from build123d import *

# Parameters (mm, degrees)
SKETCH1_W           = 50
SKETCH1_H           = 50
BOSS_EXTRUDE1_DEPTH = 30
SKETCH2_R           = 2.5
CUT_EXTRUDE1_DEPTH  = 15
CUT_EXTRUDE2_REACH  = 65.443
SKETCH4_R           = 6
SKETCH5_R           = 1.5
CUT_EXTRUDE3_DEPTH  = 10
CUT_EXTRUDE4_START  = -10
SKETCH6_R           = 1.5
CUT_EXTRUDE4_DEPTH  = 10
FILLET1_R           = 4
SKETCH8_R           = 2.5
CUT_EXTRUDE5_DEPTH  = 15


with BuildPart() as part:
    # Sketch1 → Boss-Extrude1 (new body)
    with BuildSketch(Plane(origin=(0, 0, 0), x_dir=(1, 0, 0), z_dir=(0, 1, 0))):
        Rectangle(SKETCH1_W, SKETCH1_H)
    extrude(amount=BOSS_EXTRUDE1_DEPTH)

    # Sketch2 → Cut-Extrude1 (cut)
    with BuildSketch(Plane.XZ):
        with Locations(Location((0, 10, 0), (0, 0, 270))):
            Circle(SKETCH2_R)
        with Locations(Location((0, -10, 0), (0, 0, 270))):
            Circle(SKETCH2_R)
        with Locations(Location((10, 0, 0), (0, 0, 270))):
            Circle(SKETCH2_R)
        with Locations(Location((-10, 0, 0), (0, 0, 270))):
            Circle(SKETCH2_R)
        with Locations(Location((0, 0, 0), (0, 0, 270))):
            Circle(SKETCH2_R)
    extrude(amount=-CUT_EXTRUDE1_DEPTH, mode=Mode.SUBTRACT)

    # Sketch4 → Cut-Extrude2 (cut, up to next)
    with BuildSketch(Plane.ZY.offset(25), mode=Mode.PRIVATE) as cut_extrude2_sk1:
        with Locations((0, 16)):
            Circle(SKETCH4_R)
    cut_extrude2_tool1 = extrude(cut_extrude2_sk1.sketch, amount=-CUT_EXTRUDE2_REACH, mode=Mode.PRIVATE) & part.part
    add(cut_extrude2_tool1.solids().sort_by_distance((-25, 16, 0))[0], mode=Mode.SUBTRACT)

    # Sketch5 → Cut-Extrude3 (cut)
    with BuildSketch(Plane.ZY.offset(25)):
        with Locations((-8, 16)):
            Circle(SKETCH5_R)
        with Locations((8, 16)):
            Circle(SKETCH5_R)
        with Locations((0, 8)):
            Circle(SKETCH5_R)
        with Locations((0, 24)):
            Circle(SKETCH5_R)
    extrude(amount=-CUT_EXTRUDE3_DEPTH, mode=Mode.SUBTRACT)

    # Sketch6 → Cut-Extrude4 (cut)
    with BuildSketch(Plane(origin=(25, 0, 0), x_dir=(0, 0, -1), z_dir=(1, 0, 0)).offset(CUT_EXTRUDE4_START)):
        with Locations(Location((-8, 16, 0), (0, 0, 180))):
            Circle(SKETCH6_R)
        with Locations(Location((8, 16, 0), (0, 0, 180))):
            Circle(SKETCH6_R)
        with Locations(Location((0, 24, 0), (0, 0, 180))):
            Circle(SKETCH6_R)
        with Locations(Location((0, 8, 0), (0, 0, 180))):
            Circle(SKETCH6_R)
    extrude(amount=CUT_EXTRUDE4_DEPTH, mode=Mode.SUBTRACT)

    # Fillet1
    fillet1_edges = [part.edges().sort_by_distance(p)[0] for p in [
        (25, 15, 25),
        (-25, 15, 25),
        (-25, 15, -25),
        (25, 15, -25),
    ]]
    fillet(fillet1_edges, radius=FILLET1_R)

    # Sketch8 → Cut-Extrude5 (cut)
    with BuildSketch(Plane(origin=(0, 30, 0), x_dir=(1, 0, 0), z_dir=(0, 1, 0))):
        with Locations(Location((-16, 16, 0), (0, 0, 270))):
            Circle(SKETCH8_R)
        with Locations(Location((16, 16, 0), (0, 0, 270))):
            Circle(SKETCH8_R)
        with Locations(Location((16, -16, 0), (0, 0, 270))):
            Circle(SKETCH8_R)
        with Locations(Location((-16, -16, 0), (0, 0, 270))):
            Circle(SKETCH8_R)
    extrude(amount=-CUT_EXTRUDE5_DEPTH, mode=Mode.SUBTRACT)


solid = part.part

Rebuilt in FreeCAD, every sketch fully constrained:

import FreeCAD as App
import Part
import Sketcher

V = App.Vector


def edges_at(feature, points):
    """Names of the edges that pass closest to the given points."""
    edges = feature.Shape.Edges
    near = lambda p: min(range(len(edges)), key=lambda i: edges[i].distToShape(Part.Vertex(*p))[0])
    return sorted({f"Edge{near(p) + 1}" for p in points})

doc = App.newDocument("Part")
body = doc.addObject("PartDesign::Body", "Body")

# Sketch on XZ plane
sketch1 = doc.addObject("Sketcher::SketchObject", "Sketch")
body.addObject(sketch1)
sketch1.AttachmentSupport = (doc.XZ_Plane, [""])
sketch1.MapMode = "FlatFace"
sketch1.addGeometry(Part.LineSegment(V(-25, -25, 0), V(-25, 25, 0)), False)
sketch1.addGeometry(Part.LineSegment(V(-25, 25, 0), V(25, 25, 0)), False)
sketch1.addGeometry(Part.LineSegment(V(25, 25, 0), V(25, -25, 0)), False)
sketch1.addGeometry(Part.LineSegment(V(25, -25, 0), V(-25, -25, 0)), False)
sketch1.addConstraint(Sketcher.Constraint("Coincident", 0, 2, 1, 1))
sketch1.addConstraint(Sketcher.Constraint("Coincident", 1, 2, 2, 1))
sketch1.addConstraint(Sketcher.Constraint("Coincident", 2, 2, 3, 1))
sketch1.addConstraint(Sketcher.Constraint("Coincident", 3, 2, 0, 1))
sketch1.addConstraint(Sketcher.Constraint("Vertical", 0))
sketch1.addConstraint(Sketcher.Constraint("Horizontal", 1))
sketch1.addConstraint(Sketcher.Constraint("Vertical", 2))
sketch1.addConstraint(Sketcher.Constraint("Horizontal", 3))
sketch1.addConstraint(Sketcher.Constraint("Symmetric", 0, 2, 2, 2, -1, 1))
sketch1.addConstraint(Sketcher.Constraint("Equal", 3, 0))
sketch1.addConstraint(Sketcher.Constraint("DistanceX", 1, 1, 1, 2, 50.0))
pad1 = doc.addObject("PartDesign::Pad", "Pad")
body.addObject(pad1)
pad1.Profile = sketch1
pad1.Length = 30
pad1.Reversed = True

# Sketch on XZ plane
sketch2 = doc.addObject("Sketcher::SketchObject", "Sketch001")
body.addObject(sketch2)
sketch2.AttachmentSupport = (doc.XZ_Plane, [""])
sketch2.MapMode = "FlatFace"
sketch2.addGeometry(Part.Circle(V(0, 10, 0), V(0, 0, 1), 2.5), False)
sketch2.addGeometry(Part.Circle(V(0, -10, 0), V(0, 0, 1), 2.5), False)
sketch2.addGeometry(Part.Circle(V(10, 0, 0), V(0, 0, 1), 2.5), False)
sketch2.addGeometry(Part.Circle(V(-10, 0, 0), V(0, 0, 1), 2.5), False)
sketch2.addGeometry(Part.Circle(V(0, 0, 0), V(0, 0, 1), 2.5), False)
sketch2.addConstraint(Sketcher.Constraint("Coincident", 4, 3, -1, 1))
sketch2.addConstraint(Sketcher.Constraint("Equal", 0, 1))
sketch2.addConstraint(Sketcher.Constraint("Equal", 1, 2))
sketch2.addConstraint(Sketcher.Constraint("Equal", 2, 3))
sketch2.addConstraint(Sketcher.Constraint("Equal", 3, 4))
sketch2.addConstraint(Sketcher.Constraint("Symmetric", 0, 3, 1, 3, -1, 1))
sketch2.addConstraint(Sketcher.Constraint("Symmetric", 2, 3, 3, 3, -1, 1))
sketch2.addConstraint(Sketcher.Constraint("PointOnObject", 0, 3, -2))
sketch2.addConstraint(Sketcher.Constraint("PointOnObject", 2, 3, -1))
sketch2.addConstraint(Sketcher.Constraint("Diameter", 0, 5.0))
sketch2.addConstraint(Sketcher.Constraint("DistanceY", -1, 1, 0, 3, 10.0))
sketch2.addConstraint(Sketcher.Constraint("DistanceX", -1, 1, 2, 3, 10.0))
pocket1 = doc.addObject("PartDesign::Pocket", "Pocket")
body.addObject(pocket1)
pocket1.Profile = sketch2
pocket1.Length = 15

# Sketch on YZ plane
sketch3 = doc.addObject("Sketcher::SketchObject", "Sketch002")
body.addObject(sketch3)
sketch3.AttachmentSupport = (doc.YZ_Plane, [""])
sketch3.MapMode = "FlatFace"
sketch3.AttachmentOffset = App.Placement(V(0, 0, -25), App.Rotation())
sketch3.addGeometry(Part.Circle(V(16, 0, 0), V(0, 0, 1), 6), False)
sketch3.addConstraint(Sketcher.Constraint("PointOnObject", 0, 3, -1))
sketch3.addConstraint(Sketcher.Constraint("Diameter", 0, 12.0))
sketch3.addConstraint(Sketcher.Constraint("DistanceX", -1, 1, 0, 3, 16.0))
pocket2 = doc.addObject("PartDesign::Pocket", "Pocket001")
body.addObject(pocket2)
pocket2.Profile = sketch3
pocket2.Type = "UpToFirst"
pocket2.Reversed = True

# Sketch on YZ plane
sketch4 = doc.addObject("Sketcher::SketchObject", "Sketch003")
body.addObject(sketch4)
sketch4.AttachmentSupport = (doc.YZ_Plane, [""])
sketch4.MapMode = "FlatFace"
sketch4.AttachmentOffset = App.Placement(V(0, 0, -25), App.Rotation())
sketch4.addGeometry(Part.Circle(V(16, -8, 0), V(0, 0, 1), 1.5), False)
sketch4.addGeometry(Part.Circle(V(16, 8, 0), V(0, 0, 1), 1.5), False)
sketch4.addGeometry(Part.Circle(V(8, 0, 0), V(0, 0, 1), 1.5), False)
sketch4.addGeometry(Part.Circle(V(24, 0, 0), V(0, 0, 1), 1.5), False)
sketch4.addConstraint(Sketcher.Constraint("Equal", 0, 1))
sketch4.addConstraint(Sketcher.Constraint("Equal", 1, 2))
sketch4.addConstraint(Sketcher.Constraint("Equal", 2, 3))
sketch4.addConstraint(Sketcher.Constraint("Symmetric", 0, 3, 1, 3, -1))
sketch4.addConstraint(Sketcher.Constraint("PointOnObject", 2, 3, -1))
sketch4.addConstraint(Sketcher.Constraint("PointOnObject", 3, 3, -1))
sketch4.addConstraint(Sketcher.Constraint("Diameter", 0, 3.0))
sketch4.addConstraint(Sketcher.Constraint("DistanceX", -1, 1, 0, 3, 16.0))
sketch4.addConstraint(Sketcher.Constraint("DistanceY", 0, 3, -1, 1, 8.0))
sketch4.addConstraint(Sketcher.Constraint("DistanceX", -1, 1, 2, 3, 8.0))
sketch4.addConstraint(Sketcher.Constraint("DistanceX", -1, 1, 3, 3, 24.0))
pocket3 = doc.addObject("PartDesign::Pocket", "Pocket002")
body.addObject(pocket3)
pocket3.Profile = sketch4
pocket3.Length = 10
pocket3.Reversed = True

# Sketch on YZ plane
sketch5 = doc.addObject("Sketcher::SketchObject", "Sketch004")
body.addObject(sketch5)
sketch5.AttachmentSupport = (doc.YZ_Plane, [""])
sketch5.MapMode = "FlatFace"
sketch5.AttachmentOffset = App.Placement(V(0, 0, 15), App.Rotation())
sketch5.addGeometry(Part.Circle(V(16, 8, 0), V(0, 0, 1), 1.5), False)
sketch5.addGeometry(Part.Circle(V(16, -8, 0), V(0, 0, 1), 1.5), False)
sketch5.addGeometry(Part.Circle(V(24, 0, 0), V(0, 0, 1), 1.5), False)
sketch5.addGeometry(Part.Circle(V(8, 0, 0), V(0, 0, 1), 1.5), False)
sketch5.addConstraint(Sketcher.Constraint("Equal", 0, 1))
sketch5.addConstraint(Sketcher.Constraint("Equal", 1, 2))
sketch5.addConstraint(Sketcher.Constraint("Equal", 2, 3))
sketch5.addConstraint(Sketcher.Constraint("Symmetric", 0, 3, 1, 3, -1))
sketch5.addConstraint(Sketcher.Constraint("PointOnObject", 2, 3, -1))
sketch5.addConstraint(Sketcher.Constraint("PointOnObject", 3, 3, -1))
sketch5.addConstraint(Sketcher.Constraint("Diameter", 0, 3.0))
sketch5.addConstraint(Sketcher.Constraint("DistanceX", -1, 1, 0, 3, 16.0))
sketch5.addConstraint(Sketcher.Constraint("DistanceY", -1, 1, 0, 3, 8.0))
sketch5.addConstraint(Sketcher.Constraint("DistanceX", -1, 1, 2, 3, 24.0))
sketch5.addConstraint(Sketcher.Constraint("DistanceX", -1, 1, 3, 3, 8.0))
pocket4 = doc.addObject("PartDesign::Pocket", "Pocket003")
body.addObject(pocket4)
pocket4.Profile = sketch5
pocket4.Length = 10
pocket4.Reversed = True
doc.recompute()

fillet = doc.addObject("PartDesign::Fillet", "Fillet")
body.addObject(fillet)
fillet.Base = (pocket4, edges_at(pocket4, [
    (25, 15, 25),
    (-25, 15, 25),
    (-25, 15, -25),
    (25, 15, -25),
]))
fillet.Radius = 4

# Sketch on XZ plane
sketch6 = doc.addObject("Sketcher::SketchObject", "Sketch005")
body.addObject(sketch6)
sketch6.AttachmentSupport = (doc.XZ_Plane, [""])
sketch6.MapMode = "FlatFace"
sketch6.AttachmentOffset = App.Placement(V(0, 0, -30), App.Rotation())
sketch6.addGeometry(Part.Circle(V(-16, -16, 0), V(0, 0, 1), 2.5), False)
sketch6.addGeometry(Part.Circle(V(16, -16, 0), V(0, 0, 1), 2.5), False)
sketch6.addGeometry(Part.Circle(V(16, 16, 0), V(0, 0, 1), 2.5), False)
sketch6.addGeometry(Part.Circle(V(-16, 16, 0), V(0, 0, 1), 2.5), False)
sketch6.addConstraint(Sketcher.Constraint("Equal", 0, 1))
sketch6.addConstraint(Sketcher.Constraint("Equal", 1, 2))
sketch6.addConstraint(Sketcher.Constraint("Equal", 2, 3))
sketch6.addConstraint(Sketcher.Constraint("Symmetric", 0, 3, 2, 3, -1, 1))
sketch6.addConstraint(Sketcher.Constraint("Symmetric", 1, 3, 3, 3, -1, 1))
sketch6.addConstraint(Sketcher.Constraint("Symmetric", 0, 3, 1, 3, -2))
sketch6.addConstraint(Sketcher.Constraint("Diameter", 0, 5.0))
sketch6.addConstraint(Sketcher.Constraint("DistanceX", 0, 3, -1, 1, 16.0))
sketch6.addConstraint(Sketcher.Constraint("DistanceY", 0, 3, -1, 1, 16.0))
pocket5 = doc.addObject("PartDesign::Pocket", "Pocket004")
body.addObject(pocket5)
pocket5.Profile = sketch6
pocket5.Length = 15
pocket5.Reversed = True

doc.recompute()
